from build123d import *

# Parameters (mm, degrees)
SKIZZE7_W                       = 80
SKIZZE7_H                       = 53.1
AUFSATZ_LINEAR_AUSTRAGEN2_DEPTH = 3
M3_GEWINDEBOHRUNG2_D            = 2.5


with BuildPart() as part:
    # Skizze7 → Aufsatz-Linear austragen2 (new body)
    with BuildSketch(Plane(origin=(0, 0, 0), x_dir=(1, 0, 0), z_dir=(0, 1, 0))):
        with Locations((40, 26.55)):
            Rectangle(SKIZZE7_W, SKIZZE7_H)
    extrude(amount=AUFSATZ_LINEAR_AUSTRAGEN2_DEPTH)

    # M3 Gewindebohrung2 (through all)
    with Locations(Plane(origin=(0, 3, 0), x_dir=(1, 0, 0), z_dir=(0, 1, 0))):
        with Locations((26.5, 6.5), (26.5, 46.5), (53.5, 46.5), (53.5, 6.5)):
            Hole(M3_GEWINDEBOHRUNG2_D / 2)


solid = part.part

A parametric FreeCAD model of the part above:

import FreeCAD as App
import Part
import Sketcher

V = App.Vector
Q = App.Units.Quantity


def add_polygon(sketch, points):
    """Adds a closed chain of lines whose ends are joined by coincident constraints."""
    first, n = sketch.GeometryCount, len(points)
    for a, b in zip(points, points[1:] + points[:1]):
        sketch.addGeometry(Part.LineSegment(App.Vector(*a, 0), App.Vector(*b, 0)), False)
    for i in range(n):
        sketch.addConstraint(Sketcher.Constraint("Coincident", first + i, 2, first + (i + 1) % n, 1))

doc = App.newDocument("Part")
body = doc.addObject("PartDesign::Body", "Body")

# Sketch on XZ plane
sketch1 = body.newObject("Sketcher::SketchObject", "Sketch")
sketch1.AttachmentSupport = (doc.getObject("XZ_Plane"), [""])
sketch1.MapMode = "FlatFace"
add_polygon(sketch1, [(0, -53), (0, 0), (80, 0), (80, -53)])  # lines 0-3
sketch1.addConstraint([
    Sketcher.Constraint("Vertical", 0),
    Sketcher.Constraint("Horizontal", 1),
    Sketcher.Constraint("Vertical", 2),
    Sketcher.Constraint("Horizontal", 3),
    Sketcher.Constraint("Coincident", 0, 2, -1, 1),
    Sketcher.Constraint("DistanceX", 1, 1, 1, 2, Q("80 mm")),
    Sketcher.Constraint("DistanceY", 0, 1, 0, 2, Q("53.1 mm")),
])
pad1 = body.newObject("PartDesign::Pad", "Pad")
pad1.Profile = sketch1
pad1.Length = 3
pad1.Reversed = True

# Sketch on XZ plane
sketch2 = body.newObject("Sketcher::SketchObject", "Sketch001")
sketch2.AttachmentSupport = (doc.getObject("XZ_Plane"), [""])
sketch2.MapMode = "FlatFace"
sketch2.AttachmentOffset = App.Placement(V(0, 0, -3), App.Rotation())
sketch2.addGeometry([
    Part.Circle(V(26.5, -6.5, 0), V(0, 0, 1), 1.2),
    Part.Circle(V(26.5, -46.5, 0), V(0, 0, 1), 1.2),
    Part.Circle(V(53.5, -46.5, 0), V(0, 0, 1), 1.2),
    Part.Circle(V(53.5, -6.5, 0), V(0, 0, 1), 1.2),
], False)
sketch2.addConstraint([
    Sketcher.Constraint("Equal", 0, 1),
    Sketcher.Constraint("Equal", 1, 2),
    Sketcher.Constraint("Equal", 2, 3),
    Sketcher.Constraint("Horizontal", 1, 3, 2, 3),
    Sketcher.Constraint("Horizontal", 0, 3, 3, 3),
    Sketcher.Constraint("Vertical", 0, 3, 1, 3),
    Sketcher.Constraint("Vertical", 2, 3, 3, 3),
    Sketcher.Constraint("Diameter", 0, Q("2.5 mm")),
    Sketcher.Constraint("DistanceY", 1, 3, 0, 3, Q("40 mm")),
    Sketcher.Constraint("DistanceX", 1, 3, 2, 3, Q("27 mm")),
    Sketcher.Constraint("DistanceX", -1, 1, 0, 3, Q("26.5 mm")),
    Sketcher.Constraint("DistanceY", 0, 3, -1, 1, Q("6.5 mm")),
])
doc.recompute()
hole = body.newObject("PartDesign::Hole", "Hole")
hole.Profile = sketch2
hole.ThreadType = "None"
hole.Diameter = 2.5
hole.DepthType = "ThroughAll"
hole.Reversed = True

doc.recompute()
